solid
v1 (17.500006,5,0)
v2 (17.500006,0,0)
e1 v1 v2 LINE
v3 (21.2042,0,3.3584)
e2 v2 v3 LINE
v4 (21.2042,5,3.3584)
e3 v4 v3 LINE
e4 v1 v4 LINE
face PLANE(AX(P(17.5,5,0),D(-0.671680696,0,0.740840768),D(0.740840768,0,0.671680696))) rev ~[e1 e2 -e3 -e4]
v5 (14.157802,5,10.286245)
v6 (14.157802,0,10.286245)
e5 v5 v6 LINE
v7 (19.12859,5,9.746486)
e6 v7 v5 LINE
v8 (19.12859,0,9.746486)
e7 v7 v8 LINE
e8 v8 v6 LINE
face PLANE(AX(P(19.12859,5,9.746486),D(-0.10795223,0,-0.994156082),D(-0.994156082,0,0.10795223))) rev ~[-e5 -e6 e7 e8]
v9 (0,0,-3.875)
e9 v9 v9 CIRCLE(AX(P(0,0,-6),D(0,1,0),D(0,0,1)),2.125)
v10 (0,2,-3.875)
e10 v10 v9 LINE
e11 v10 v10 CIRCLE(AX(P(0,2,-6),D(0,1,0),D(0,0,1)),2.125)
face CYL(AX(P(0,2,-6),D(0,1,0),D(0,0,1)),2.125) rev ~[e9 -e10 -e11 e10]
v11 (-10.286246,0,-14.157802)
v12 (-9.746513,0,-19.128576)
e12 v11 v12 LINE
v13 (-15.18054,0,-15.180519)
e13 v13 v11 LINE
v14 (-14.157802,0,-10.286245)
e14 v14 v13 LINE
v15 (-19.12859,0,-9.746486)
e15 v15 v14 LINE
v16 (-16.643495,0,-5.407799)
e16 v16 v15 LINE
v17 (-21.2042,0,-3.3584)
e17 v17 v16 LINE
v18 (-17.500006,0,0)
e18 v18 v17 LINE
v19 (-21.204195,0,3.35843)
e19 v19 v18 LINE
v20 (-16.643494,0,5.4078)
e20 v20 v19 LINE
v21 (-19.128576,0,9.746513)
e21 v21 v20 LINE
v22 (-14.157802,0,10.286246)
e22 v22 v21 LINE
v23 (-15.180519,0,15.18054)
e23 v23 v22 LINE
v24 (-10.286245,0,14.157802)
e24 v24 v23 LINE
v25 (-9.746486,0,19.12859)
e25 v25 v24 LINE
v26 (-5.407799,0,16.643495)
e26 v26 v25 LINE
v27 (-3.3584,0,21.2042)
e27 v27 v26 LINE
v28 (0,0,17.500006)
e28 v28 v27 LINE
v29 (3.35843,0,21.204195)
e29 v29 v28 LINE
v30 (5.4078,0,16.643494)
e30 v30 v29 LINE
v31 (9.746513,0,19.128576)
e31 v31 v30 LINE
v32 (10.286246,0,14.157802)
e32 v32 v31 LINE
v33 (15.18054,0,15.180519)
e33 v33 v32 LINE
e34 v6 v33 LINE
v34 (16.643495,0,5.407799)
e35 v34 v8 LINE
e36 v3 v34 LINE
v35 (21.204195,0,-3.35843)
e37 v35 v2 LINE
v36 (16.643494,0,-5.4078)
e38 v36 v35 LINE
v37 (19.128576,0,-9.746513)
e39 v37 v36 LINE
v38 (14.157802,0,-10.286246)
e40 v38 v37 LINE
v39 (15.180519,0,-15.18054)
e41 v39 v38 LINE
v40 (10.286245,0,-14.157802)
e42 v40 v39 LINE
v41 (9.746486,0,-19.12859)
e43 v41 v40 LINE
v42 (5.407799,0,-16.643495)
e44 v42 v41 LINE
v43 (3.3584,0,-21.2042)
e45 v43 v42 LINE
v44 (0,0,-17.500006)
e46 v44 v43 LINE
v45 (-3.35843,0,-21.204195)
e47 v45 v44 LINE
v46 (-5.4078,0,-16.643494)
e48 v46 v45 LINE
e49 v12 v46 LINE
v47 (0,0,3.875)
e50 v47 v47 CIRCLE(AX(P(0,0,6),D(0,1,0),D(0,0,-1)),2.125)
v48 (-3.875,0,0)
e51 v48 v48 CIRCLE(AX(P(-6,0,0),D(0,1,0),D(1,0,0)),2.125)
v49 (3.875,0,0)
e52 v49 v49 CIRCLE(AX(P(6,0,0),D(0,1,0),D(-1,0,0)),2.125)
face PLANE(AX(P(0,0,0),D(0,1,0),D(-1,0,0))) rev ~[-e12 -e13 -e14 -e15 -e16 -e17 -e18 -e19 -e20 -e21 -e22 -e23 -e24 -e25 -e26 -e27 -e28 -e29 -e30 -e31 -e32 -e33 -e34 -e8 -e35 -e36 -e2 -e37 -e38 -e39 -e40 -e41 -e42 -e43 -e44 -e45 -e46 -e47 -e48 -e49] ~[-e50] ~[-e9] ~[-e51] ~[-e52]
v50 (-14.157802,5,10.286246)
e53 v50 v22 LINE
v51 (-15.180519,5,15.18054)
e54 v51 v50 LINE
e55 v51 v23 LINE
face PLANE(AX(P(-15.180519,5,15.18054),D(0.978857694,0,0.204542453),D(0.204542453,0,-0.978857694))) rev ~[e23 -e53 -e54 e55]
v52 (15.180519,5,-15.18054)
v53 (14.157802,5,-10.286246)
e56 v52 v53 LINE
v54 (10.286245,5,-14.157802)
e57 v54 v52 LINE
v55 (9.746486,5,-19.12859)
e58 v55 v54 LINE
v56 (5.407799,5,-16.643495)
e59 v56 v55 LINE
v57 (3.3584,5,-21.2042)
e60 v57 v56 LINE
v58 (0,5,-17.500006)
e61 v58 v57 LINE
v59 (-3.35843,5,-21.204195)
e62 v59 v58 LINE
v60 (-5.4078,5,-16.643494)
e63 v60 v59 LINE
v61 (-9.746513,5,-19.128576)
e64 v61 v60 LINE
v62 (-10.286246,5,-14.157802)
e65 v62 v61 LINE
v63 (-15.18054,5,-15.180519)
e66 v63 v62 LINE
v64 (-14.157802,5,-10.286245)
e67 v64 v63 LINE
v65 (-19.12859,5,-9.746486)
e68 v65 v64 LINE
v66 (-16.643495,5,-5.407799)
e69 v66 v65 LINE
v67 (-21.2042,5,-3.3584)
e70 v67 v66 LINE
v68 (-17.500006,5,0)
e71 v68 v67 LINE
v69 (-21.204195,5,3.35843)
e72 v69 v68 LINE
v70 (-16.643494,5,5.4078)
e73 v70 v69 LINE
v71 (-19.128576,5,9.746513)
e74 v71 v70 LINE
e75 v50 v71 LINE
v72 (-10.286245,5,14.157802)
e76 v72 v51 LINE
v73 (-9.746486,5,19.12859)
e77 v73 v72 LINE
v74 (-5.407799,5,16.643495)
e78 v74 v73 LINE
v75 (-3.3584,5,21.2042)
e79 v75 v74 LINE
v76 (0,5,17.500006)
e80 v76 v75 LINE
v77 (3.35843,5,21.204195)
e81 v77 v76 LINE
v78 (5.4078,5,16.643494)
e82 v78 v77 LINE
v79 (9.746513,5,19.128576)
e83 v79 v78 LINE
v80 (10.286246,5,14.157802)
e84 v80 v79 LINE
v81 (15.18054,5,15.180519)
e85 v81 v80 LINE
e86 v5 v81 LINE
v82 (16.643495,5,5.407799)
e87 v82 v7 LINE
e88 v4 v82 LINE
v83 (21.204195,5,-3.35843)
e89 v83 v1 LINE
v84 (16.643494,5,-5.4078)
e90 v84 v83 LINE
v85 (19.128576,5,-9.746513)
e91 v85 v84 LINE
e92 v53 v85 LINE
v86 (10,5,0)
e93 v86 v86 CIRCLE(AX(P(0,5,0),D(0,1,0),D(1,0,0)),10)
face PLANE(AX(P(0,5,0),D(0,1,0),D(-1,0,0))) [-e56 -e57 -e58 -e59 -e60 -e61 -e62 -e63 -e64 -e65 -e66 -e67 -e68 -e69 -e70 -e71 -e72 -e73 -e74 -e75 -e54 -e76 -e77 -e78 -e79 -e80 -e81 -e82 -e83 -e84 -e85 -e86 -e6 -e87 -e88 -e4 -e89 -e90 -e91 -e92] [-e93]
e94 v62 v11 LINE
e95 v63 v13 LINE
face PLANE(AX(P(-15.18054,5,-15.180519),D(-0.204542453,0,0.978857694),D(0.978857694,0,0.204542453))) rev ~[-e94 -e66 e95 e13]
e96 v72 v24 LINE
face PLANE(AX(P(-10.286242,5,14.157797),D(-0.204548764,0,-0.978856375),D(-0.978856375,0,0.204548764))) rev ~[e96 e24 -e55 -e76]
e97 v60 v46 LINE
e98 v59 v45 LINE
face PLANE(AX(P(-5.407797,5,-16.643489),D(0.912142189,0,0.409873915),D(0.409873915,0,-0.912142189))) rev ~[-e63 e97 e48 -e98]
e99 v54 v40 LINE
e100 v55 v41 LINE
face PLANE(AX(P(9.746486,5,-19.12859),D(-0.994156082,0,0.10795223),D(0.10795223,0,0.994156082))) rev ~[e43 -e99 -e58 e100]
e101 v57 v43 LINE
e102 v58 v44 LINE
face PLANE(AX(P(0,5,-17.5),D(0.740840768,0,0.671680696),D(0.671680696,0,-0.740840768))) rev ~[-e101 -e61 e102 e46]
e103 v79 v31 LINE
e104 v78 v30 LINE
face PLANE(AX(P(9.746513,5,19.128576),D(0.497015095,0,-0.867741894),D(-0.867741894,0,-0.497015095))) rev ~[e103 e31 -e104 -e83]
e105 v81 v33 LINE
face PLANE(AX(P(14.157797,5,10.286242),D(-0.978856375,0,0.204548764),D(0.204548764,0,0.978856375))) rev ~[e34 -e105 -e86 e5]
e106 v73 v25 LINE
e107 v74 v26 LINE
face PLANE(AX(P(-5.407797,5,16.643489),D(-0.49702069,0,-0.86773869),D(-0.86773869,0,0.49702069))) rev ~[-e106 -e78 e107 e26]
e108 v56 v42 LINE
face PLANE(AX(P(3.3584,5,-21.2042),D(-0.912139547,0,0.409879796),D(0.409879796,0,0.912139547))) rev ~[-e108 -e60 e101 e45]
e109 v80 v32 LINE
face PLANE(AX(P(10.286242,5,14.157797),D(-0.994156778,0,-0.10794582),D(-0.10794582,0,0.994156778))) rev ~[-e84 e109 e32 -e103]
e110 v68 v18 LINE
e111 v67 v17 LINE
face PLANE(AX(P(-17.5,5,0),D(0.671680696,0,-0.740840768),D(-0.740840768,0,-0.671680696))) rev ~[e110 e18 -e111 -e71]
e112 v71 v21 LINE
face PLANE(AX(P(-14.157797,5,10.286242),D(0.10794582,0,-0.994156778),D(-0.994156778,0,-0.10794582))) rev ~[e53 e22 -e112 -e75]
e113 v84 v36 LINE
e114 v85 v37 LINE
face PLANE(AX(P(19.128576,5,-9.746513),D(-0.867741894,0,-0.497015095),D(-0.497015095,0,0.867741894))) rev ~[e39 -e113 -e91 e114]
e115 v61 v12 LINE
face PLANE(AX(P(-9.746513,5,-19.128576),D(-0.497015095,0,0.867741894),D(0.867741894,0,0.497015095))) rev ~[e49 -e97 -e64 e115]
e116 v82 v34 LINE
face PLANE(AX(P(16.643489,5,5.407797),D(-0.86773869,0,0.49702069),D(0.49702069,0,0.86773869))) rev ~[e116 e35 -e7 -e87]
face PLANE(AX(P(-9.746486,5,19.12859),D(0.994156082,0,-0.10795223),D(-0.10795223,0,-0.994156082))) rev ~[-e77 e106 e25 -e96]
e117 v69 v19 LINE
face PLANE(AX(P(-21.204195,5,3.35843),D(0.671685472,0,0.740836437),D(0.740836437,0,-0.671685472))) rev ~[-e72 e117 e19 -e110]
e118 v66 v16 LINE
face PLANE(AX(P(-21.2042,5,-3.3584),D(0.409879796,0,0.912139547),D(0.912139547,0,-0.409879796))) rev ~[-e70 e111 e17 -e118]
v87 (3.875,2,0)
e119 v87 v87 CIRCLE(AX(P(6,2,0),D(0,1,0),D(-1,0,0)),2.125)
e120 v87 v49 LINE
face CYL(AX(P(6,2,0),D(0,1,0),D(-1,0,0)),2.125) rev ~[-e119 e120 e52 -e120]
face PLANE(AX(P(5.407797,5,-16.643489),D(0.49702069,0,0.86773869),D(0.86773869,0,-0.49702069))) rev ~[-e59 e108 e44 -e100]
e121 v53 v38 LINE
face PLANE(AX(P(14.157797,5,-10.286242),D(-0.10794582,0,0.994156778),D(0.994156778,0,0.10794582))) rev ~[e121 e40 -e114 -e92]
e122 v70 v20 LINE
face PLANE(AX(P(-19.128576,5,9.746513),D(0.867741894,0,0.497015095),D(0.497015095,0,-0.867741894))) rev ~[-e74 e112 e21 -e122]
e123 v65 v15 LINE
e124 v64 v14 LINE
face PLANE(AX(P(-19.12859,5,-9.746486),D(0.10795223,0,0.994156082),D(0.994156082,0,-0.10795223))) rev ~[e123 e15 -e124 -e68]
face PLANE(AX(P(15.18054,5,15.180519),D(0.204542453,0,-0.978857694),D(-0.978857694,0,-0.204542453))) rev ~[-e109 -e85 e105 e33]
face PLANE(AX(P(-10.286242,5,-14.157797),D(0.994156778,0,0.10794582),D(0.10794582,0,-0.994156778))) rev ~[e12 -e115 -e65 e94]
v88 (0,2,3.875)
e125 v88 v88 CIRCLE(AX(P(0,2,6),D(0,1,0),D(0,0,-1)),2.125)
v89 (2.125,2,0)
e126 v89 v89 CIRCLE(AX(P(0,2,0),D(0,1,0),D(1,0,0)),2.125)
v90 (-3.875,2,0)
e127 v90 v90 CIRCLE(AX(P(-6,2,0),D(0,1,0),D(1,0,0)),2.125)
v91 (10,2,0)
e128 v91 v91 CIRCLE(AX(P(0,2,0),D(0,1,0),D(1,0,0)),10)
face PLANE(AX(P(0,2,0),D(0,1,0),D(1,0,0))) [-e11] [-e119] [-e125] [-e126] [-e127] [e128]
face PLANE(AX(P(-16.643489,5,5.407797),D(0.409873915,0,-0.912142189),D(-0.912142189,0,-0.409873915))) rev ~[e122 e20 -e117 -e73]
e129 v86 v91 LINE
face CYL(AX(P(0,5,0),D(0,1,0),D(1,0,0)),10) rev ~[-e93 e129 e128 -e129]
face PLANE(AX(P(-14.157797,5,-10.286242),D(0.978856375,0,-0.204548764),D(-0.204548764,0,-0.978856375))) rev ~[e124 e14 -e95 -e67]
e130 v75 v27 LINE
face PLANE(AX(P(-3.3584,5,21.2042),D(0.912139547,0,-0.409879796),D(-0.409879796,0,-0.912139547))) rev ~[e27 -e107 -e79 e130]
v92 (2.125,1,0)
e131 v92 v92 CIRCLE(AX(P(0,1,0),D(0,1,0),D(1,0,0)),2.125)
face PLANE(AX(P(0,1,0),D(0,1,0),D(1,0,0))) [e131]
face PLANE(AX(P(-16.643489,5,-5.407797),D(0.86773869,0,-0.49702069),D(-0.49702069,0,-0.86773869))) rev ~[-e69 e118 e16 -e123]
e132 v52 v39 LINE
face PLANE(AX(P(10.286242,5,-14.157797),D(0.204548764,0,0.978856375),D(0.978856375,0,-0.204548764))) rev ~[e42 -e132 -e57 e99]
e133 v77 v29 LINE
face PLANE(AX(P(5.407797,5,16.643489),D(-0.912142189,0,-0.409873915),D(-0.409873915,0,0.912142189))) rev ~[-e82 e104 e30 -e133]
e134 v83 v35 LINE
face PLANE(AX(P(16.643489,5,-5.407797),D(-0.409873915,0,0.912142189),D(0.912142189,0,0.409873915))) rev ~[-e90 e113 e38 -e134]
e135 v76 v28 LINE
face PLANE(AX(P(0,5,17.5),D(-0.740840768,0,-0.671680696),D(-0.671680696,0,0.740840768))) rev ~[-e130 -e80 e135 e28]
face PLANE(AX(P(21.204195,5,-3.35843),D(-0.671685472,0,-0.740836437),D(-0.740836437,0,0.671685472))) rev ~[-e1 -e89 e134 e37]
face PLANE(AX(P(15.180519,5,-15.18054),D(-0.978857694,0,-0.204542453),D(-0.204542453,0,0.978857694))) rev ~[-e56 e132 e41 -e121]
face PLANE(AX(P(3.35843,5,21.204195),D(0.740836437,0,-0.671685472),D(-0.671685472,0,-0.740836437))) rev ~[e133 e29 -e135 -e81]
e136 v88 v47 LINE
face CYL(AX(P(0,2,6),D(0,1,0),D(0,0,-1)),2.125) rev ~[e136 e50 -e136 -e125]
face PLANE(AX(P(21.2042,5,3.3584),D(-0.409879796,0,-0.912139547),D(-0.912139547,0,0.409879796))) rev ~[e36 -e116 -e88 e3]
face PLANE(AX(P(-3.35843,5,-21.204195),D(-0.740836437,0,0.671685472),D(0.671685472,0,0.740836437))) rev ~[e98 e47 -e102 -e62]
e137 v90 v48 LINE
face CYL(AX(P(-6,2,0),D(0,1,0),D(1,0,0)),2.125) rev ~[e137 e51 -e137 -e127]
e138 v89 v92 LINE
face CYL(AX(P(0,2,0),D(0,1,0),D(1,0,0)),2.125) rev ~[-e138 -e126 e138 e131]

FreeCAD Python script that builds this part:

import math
import FreeCAD as App
import Part
import Sketcher
from FreeCAD import Vector

doc = App.newDocument("Part")
body = doc.addObject("PartDesign::Body", "Body")

# Sketch on XZ plane
sketch1 = body.newObject("Sketcher::SketchObject", "Sketch")
sketch1.AttachmentSupport = (doc.getObject("XZ_Plane"), [""])
sketch1.MapMode = "FlatFace"
sketch1.addGeometry(Part.Circle(Vector(0, 0, 0), Vector(0, 0, 1), 18), False)
sketch1.addConstraint([
    Sketcher.Constraint("Coincident", 0, 3, -1, 1),
    Sketcher.Constraint("Diameter", 0, 35.0),
])
pad1 = body.newObject("PartDesign::Pad", "Pad")
pad1.Profile = sketch1
pad1.Length = 5
pad1.Reversed = True

# Sketch on XZ plane
sketch2 = body.newObject("Sketcher::SketchObject", "Sketch001")
sketch2.AttachmentSupport = (doc.getObject("XZ_Plane"), [""])
sketch2.MapMode = "FlatFace"
sketch2.AttachmentOffset = App.Placement(Vector(0, 0, -5), App.Rotation())
sketch2.addGeometry(Part.Circle(Vector(0, 0, 0), Vector(0, 0, 1), 10), False)
sketch2.addConstraint([
    Sketcher.Constraint("Coincident", 0, 3, -1, 1),
    Sketcher.Constraint("Diameter", 0, 20.0),
])
pocket1 = body.newObject("PartDesign::Pocket", "Pocket")
pocket1.Profile = sketch2
pocket1.Length = 3
pocket1.Reversed = True

# Sketch on XZ plane
sketch3 = body.newObject("Sketcher::SketchObject", "Sketch002")
sketch3.AttachmentSupport = (doc.getObject("XZ_Plane"), [""])
sketch3.MapMode = "FlatFace"
sketch3.AttachmentOffset = App.Placement(Vector(0, 0, -2), App.Rotation())
sketch3.addGeometry(Part.Circle(Vector(-6, 0, 0), Vector(0, 0, 1), 2.1), False)
sketch3.addConstraint([
    Sketcher.Constraint("PointOnObject", 0, 3, -1),
    Sketcher.Constraint("Diameter", 0, 4.25),
    Sketcher.Constraint("DistanceX", 0, 3, -1, 1, 6.0),
])
pocket2 = body.newObject("PartDesign::Pocket", "Pocket001")
pocket2.Profile = sketch3
pocket2.Type = "ThroughAll"
pocket2.Reversed = True
doc.recompute()

polarpattern = body.newObject("PartDesign::PolarPattern", "PolarPattern")
polarpattern.Originals = [pocket2]
polarpattern.Axis = (doc.getObject("Y_Axis"), [""])
polarpattern.Angle = 360
polarpattern.Occurrences = 4
body.Tip = polarpattern

# Sketch on XZ plane
sketch4 = body.newObject("Sketcher::SketchObject", "Sketch003")
sketch4.AttachmentSupport = (doc.getObject("XZ_Plane"), [""])
sketch4.MapMode = "FlatFace"
sketch4.AttachmentOffset = App.Placement(Vector(0, 0, -2), App.Rotation())
sketch4.addGeometry(Part.Circle(Vector(0, 0, 0), Vector(0, 0, 1), 2.1), False)
sketch4.addConstraint([
    Sketcher.Constraint("Coincident", 0, 3, -1, 1),
    Sketcher.Constraint("Diameter", 0, 4.25),
])
pocket3 = body.newObject("PartDesign::Pocket", "Pocket002")
pocket3.Profile = sketch4
pocket3.Length = 1
pocket3.Reversed = True

# Sketch on XZ plane
sketch5 = body.newObject("Sketcher::SketchObject", "Sketch004")
sketch5.AttachmentSupport = (doc.getObject("XZ_Plane"), [""])
sketch5.MapMode = "FlatFace"
sketch5.AttachmentOffset = App.Placement(Vector(0, 0, -5), App.Rotation())
sketch5.addGeometry([
    Part.LineSegment(Vector(5.4, -16.6, 0), Vector(3.4, -21.2, 0)),
    Part.LineSegment(Vector(3.4, -21.2, 0), Vector(0, -17.5, 0)),
    Part.ArcOfCircle(Part.Circle(Vector(0, 0, 0), Vector(0, 0, 1), 17.5), math.radians(-90), math.radians(-72)),
], False)
sketch5.addConstraint([
    Sketcher.Constraint("Coincident", 0, 2, 1, 1),
    Sketcher.Constraint("Coincident", 1, 2, 2, 1),
    Sketcher.Constraint("Coincident", 2, 2, 0, 1),
    Sketcher.Constraint("Coincident", 2, 3, -1, 1),
    Sketcher.Constraint("PointOnObject", 1, 2, -2),
    Sketcher.Constraint("Equal", 0, 1),
    Sketcher.Constraint("Distance", 0, 5.0),
    Sketcher.Constraint("Radius", 2, 17.5),
    Sketcher.Constraint("DistanceX", -1, 1, 0, 2, 3.3584),
])
pad2 = body.newObject("PartDesign::Pad", "Pad001")
pad2.Profile = sketch5
pad2.Length = 5
doc.recompute()

polarpattern2 = body.newObject("PartDesign::PolarPattern", "PolarPattern001")
polarpattern2.Originals = [pad2]
polarpattern2.Axis = (doc.getObject("Y_Axis"), [""])
polarpattern2.Angle = 360
polarpattern2.Occurrences = 20
body.Tip = polarpattern2

doc.recompute()
